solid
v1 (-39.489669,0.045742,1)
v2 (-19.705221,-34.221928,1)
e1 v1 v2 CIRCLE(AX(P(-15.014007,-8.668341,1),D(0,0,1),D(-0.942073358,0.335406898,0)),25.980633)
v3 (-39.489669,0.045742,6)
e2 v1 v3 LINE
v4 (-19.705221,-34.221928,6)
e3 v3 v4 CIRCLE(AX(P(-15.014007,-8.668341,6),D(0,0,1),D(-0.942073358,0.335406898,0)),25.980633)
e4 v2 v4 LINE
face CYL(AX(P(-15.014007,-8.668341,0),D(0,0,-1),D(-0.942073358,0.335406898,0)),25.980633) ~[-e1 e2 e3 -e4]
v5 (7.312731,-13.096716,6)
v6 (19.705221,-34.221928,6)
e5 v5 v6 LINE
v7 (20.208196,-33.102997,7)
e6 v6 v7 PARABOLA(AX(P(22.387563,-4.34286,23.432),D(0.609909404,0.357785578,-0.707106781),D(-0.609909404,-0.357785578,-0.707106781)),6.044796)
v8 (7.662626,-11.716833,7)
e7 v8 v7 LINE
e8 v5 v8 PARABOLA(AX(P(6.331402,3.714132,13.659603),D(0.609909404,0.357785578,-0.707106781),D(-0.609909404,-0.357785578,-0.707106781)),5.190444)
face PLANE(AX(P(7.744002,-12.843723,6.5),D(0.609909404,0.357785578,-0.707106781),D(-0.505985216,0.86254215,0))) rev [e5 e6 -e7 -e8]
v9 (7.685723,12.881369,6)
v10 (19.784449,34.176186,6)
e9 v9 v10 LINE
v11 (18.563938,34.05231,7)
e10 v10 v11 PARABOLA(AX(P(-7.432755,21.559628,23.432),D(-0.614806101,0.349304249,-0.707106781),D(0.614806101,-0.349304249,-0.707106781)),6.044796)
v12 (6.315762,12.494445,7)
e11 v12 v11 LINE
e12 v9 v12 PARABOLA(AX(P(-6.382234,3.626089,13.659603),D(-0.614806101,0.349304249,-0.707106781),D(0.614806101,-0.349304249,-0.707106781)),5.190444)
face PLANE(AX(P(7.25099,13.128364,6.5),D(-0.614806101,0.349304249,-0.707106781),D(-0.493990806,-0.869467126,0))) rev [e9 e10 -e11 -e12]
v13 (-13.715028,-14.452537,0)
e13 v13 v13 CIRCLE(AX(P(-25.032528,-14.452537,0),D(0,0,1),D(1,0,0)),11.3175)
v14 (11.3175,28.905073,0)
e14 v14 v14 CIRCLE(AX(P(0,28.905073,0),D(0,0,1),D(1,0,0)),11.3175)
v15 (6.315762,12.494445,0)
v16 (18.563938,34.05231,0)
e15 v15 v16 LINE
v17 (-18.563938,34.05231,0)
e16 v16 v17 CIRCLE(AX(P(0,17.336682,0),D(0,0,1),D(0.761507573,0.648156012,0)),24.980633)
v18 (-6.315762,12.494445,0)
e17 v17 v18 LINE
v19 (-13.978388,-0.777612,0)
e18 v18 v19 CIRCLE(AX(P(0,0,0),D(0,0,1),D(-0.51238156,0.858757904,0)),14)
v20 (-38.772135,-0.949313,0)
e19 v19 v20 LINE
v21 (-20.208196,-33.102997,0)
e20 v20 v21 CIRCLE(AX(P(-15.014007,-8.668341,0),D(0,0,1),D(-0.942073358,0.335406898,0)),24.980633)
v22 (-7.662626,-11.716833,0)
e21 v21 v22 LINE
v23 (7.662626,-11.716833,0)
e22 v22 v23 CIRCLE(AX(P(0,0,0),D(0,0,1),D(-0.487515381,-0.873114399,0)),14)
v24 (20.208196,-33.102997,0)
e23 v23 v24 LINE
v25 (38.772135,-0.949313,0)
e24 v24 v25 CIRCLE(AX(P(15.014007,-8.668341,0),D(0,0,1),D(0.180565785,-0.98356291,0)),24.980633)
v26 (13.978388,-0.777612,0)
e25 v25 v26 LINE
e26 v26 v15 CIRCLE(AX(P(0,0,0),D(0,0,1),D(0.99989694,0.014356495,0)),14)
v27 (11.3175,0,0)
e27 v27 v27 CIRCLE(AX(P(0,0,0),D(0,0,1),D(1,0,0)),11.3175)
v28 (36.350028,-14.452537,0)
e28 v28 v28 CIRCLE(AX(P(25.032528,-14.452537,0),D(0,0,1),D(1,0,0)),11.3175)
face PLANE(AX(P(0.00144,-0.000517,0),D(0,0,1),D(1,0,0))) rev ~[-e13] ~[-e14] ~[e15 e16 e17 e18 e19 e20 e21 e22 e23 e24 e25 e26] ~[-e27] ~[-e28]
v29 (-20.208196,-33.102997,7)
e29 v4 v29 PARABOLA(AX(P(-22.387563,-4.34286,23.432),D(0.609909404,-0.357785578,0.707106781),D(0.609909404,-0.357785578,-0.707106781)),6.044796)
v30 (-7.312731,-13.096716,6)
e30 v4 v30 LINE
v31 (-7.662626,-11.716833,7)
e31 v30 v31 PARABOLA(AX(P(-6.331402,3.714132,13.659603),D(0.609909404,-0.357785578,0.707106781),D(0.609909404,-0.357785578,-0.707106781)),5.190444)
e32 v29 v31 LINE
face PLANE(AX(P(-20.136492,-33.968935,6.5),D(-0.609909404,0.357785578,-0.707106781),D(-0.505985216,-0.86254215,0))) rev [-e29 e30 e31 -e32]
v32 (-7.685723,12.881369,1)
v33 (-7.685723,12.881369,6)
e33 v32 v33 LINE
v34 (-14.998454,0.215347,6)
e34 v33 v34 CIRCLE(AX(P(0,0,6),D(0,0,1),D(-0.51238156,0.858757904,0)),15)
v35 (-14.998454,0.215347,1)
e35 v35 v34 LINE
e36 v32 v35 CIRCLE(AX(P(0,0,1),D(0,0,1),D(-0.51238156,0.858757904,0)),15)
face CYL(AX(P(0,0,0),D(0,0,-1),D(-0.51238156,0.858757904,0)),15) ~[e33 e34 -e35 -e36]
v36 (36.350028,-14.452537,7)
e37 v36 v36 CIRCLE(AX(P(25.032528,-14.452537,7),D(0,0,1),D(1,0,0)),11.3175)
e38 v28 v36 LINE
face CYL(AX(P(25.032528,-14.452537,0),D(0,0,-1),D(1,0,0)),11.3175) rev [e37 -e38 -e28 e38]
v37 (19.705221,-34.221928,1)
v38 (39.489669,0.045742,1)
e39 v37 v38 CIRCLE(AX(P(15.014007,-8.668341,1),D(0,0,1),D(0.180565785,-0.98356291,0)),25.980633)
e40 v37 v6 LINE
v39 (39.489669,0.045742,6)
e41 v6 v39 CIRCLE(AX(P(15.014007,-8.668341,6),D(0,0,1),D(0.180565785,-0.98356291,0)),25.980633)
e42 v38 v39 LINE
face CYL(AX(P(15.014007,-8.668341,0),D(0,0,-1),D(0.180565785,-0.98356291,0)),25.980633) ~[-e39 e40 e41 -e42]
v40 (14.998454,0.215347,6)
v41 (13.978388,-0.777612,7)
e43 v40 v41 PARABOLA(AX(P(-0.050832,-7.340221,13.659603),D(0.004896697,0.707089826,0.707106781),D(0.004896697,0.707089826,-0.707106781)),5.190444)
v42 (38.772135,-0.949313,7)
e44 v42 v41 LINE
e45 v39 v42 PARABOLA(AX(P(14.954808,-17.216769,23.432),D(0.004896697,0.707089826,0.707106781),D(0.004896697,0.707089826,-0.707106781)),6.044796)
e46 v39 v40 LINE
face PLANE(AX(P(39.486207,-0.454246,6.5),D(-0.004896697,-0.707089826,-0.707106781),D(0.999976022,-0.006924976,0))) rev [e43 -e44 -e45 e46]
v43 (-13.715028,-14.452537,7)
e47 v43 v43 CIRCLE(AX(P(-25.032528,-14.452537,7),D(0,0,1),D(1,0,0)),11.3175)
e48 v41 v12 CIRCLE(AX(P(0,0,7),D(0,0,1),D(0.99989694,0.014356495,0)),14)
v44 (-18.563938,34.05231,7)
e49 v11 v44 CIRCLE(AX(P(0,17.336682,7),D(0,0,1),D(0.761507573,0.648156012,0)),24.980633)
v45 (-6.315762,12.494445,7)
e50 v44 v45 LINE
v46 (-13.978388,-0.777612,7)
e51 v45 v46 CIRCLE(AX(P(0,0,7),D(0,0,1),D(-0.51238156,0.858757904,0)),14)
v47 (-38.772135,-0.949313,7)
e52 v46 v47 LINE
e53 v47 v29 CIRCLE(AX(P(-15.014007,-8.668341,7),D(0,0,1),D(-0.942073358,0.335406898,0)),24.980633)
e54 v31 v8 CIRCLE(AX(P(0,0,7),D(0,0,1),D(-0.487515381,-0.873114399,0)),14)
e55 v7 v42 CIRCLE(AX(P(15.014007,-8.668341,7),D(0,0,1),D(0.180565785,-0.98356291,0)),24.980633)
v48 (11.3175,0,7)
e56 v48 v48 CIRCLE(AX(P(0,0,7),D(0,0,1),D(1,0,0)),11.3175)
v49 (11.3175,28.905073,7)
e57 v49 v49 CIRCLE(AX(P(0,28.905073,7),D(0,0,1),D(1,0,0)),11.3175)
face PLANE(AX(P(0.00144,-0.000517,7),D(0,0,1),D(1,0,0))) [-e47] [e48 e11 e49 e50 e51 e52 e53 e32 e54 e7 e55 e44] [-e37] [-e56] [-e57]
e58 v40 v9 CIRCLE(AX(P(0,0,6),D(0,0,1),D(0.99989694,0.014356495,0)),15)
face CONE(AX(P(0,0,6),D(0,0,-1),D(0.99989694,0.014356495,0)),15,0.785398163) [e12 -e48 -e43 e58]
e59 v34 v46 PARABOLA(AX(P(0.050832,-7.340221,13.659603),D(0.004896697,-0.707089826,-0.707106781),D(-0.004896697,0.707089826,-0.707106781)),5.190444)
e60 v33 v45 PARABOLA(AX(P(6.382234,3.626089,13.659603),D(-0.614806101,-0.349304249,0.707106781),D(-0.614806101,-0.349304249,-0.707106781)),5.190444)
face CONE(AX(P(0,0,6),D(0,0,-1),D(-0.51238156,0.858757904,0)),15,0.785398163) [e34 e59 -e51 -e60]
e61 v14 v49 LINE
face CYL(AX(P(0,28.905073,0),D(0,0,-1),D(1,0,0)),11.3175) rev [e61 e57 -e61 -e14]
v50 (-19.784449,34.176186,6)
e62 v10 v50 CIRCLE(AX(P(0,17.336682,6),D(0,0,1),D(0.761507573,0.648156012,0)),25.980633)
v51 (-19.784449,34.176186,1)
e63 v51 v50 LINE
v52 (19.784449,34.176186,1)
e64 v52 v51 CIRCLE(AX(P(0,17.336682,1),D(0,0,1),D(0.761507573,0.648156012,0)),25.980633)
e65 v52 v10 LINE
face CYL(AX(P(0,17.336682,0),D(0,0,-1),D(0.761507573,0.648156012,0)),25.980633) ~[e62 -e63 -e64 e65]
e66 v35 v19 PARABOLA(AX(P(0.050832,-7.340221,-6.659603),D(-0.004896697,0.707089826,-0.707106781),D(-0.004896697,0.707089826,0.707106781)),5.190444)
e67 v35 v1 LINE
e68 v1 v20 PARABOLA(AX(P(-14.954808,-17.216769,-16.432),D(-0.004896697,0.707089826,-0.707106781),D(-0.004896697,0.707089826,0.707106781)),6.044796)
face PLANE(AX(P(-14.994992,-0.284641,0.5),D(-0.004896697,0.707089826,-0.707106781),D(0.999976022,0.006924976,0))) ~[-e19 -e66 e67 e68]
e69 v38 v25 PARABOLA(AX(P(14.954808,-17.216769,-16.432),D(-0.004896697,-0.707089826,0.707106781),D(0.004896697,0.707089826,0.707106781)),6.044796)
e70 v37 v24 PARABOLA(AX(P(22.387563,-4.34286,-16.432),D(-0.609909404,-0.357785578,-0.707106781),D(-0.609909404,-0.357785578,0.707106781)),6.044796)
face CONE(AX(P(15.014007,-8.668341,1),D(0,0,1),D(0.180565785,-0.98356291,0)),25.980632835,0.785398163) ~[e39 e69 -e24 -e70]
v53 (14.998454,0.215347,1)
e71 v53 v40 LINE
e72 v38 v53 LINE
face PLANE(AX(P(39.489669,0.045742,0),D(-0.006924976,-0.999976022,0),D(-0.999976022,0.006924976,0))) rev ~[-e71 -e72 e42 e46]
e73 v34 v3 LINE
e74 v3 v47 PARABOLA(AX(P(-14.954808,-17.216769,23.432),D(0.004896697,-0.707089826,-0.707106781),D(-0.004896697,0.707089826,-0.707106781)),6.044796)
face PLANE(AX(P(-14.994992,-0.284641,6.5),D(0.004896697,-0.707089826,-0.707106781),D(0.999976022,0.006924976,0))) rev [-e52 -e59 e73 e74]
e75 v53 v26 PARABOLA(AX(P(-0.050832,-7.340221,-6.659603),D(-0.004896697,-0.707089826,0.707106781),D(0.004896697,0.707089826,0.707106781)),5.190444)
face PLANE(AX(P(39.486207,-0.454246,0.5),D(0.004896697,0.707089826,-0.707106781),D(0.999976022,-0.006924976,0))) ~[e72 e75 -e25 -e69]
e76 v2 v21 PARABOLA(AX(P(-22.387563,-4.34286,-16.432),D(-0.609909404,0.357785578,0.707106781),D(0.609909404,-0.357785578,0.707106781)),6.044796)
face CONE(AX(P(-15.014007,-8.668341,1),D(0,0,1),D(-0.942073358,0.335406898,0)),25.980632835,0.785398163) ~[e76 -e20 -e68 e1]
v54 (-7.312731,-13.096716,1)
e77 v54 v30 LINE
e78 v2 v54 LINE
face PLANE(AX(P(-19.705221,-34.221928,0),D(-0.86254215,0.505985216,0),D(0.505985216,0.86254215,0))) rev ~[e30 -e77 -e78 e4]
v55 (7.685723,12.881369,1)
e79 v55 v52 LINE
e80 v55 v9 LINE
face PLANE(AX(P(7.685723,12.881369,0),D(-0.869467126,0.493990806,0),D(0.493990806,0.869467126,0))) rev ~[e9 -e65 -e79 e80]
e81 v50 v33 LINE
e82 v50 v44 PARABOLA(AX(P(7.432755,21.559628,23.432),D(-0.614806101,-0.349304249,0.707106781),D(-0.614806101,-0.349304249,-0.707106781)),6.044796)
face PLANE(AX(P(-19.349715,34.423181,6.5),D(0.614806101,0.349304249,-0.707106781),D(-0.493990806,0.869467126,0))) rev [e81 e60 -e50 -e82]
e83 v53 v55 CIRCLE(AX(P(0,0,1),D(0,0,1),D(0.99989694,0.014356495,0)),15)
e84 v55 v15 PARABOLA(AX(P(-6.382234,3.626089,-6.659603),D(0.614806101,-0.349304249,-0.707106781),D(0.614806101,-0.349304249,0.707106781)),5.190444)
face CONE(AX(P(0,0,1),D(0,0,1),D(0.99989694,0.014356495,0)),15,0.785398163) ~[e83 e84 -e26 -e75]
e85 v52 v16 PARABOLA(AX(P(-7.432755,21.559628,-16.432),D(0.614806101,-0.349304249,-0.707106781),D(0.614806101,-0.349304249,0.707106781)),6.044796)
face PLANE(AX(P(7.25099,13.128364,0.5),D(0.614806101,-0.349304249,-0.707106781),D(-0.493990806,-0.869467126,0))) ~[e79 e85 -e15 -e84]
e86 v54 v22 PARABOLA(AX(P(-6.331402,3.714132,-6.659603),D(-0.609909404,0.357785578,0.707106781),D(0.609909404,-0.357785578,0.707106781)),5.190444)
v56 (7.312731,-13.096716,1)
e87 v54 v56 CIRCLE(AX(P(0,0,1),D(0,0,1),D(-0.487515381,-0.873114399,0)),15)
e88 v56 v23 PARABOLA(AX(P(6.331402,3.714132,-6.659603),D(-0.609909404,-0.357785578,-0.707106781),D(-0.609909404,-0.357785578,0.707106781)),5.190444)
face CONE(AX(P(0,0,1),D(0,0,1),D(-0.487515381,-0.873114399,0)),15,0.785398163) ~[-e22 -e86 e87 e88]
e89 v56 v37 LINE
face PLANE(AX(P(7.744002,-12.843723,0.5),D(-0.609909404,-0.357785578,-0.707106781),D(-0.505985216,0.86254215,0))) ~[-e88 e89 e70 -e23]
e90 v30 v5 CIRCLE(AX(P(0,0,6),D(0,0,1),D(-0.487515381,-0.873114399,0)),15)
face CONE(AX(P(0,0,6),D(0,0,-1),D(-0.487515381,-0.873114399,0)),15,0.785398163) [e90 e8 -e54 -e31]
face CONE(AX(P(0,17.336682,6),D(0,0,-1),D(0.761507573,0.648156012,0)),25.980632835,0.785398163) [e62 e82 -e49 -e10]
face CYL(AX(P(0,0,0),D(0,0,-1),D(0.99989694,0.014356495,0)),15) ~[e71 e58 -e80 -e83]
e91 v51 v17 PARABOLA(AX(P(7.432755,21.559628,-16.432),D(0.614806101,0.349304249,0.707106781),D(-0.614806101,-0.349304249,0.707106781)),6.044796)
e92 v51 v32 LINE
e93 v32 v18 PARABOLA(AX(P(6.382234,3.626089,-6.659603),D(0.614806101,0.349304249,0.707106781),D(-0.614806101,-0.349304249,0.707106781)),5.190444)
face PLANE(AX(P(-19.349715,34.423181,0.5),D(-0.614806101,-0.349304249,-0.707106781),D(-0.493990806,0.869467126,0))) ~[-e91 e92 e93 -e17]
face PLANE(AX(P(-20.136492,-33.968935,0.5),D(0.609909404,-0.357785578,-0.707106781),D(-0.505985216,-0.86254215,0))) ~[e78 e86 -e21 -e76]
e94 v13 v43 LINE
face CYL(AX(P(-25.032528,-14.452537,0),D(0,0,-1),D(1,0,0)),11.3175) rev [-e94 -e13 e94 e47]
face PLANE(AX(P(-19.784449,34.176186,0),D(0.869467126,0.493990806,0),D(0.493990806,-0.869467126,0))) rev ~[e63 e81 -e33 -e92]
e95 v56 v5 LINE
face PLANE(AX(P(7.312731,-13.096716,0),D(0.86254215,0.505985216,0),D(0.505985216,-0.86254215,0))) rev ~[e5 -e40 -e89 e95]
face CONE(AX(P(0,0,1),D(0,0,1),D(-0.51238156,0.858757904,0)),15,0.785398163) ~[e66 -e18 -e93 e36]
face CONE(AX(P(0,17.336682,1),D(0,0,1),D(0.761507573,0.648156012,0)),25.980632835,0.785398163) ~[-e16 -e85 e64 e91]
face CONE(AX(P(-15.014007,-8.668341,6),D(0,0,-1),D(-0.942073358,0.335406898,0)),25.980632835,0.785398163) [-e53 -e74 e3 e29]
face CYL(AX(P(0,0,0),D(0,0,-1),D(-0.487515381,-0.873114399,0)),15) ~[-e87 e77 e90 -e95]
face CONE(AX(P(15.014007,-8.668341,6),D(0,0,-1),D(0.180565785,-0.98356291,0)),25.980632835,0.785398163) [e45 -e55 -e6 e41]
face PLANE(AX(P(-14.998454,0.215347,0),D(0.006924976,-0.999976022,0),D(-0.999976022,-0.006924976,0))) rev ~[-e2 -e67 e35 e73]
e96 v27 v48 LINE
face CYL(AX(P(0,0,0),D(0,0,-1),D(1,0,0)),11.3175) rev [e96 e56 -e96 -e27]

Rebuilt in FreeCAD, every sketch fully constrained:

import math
import FreeCAD as App
import Part
import Sketcher


def edges_at(feature, points):
    """Names of the edges that pass closest to the given points."""
    edges = feature.Shape.Edges
    near = lambda p: min(range(len(edges)), key=lambda i: edges[i].distToShape(Part.Vertex(*p))[0])
    return sorted({f"Edge{near(p) + 1}" for p in points})

doc = App.newDocument("Part")
body = doc.addObject("PartDesign::Body", "Body")

sketch1 = body.newObject("Sketcher::SketchObject", "Sketch")
sketch1.AttachmentSupport = (doc.getObject("XY_Plane"), [""])
sketch1.MapMode = "FlatFace"
sketch1.addGeometry([
    Part.ArcOfCircle(Part.Circle(App.Vector(0, 0, 0), App.Vector(0, 0, 1), 15), math.radians(-119.177405), math.radians(-60.822595)),
    Part.LineSegment(App.Vector(7.312731, -13.096716, 0), App.Vector(19.705221, -34.221928, 0)),
    Part.ArcOfCircle(Part.Circle(App.Vector(15.014007, -8.668341, 0), App.Vector(0, 0, 1), 25.980633), math.radians(-79.597283), math.radians(19.597283)),
    Part.LineSegment(App.Vector(39.489669, 0.045742, 0), App.Vector(14.998454, 0.215347, 0)),
    Part.ArcOfCircle(Part.Circle(App.Vector(0, 0, 0), App.Vector(0, 0, 1), 15), math.radians(0.822595), math.radians(59.177405)),
    Part.LineSegment(App.Vector(7.685723, 12.881369, 0), App.Vector(19.784449, 34.176186, 0)),
    Part.ArcOfCircle(Part.Circle(App.Vector(0, 17.336682, 0), App.Vector(0, 0, 1), 25.980633), math.radians(40.402717), math.radians(139.597283)),
    Part.LineSegment(App.Vector(-19.784449, 34.176186, 0), App.Vector(-7.685723, 12.881369, 0)),
    Part.ArcOfCircle(Part.Circle(App.Vector(0, 0, 0), App.Vector(0, 0, 1), 15), math.radians(120.822595), math.radians(179.177405)),
    Part.LineSegment(App.Vector(-14.998454, 0.215347, 0), App.Vector(-39.489669, 0.045742, 0)),
    Part.ArcOfCircle(Part.Circle(App.Vector(-15.014007, -8.668341, 0), App.Vector(0, 0, 1), 25.980633), math.radians(160.402717), math.radians(259.597283)),
    Part.LineSegment(App.Vector(-19.705221, -34.221928, 0), App.Vector(-7.312731, -13.096716, 0)),
    Part.Circle(App.Vector(-25.032528, -14.452537, 0), App.Vector(0, 0, 1), 11.3175),
    Part.Circle(App.Vector(25.032528, -14.452537, 0), App.Vector(0, 0, 1), 11.3175),
    Part.Circle(App.Vector(0, 0, 0), App.Vector(0, 0, 1), 11.3175),
    Part.Circle(App.Vector(0, 28.905073, 0), App.Vector(0, 0, 1), 11.3175),
], False)
sketch1.addConstraint([
    Sketcher.Constraint("Coincident", 0, 2, 1, 1),
    Sketcher.Constraint("Coincident", 1, 2, 2, 1),
    Sketcher.Constraint("Coincident", 2, 2, 3, 1),
    Sketcher.Constraint("Coincident", 3, 2, 4, 1),
    Sketcher.Constraint("Coincident", 4, 2, 5, 1),
    Sketcher.Constraint("Coincident", 5, 2, 6, 1),
    Sketcher.Constraint("Coincident", 6, 2, 7, 1),
    Sketcher.Constraint("Coincident", 7, 2, 8, 1),
    Sketcher.Constraint("Coincident", 8, 2, 9, 1),
    Sketcher.Constraint("Coincident", 9, 2, 10, 1),
    Sketcher.Constraint("Coincident", 10, 2, 11, 1),
    Sketcher.Constraint("Coincident", 11, 2, 0, 1),
    Sketcher.Constraint("Coincident", 0, 3, -1, 1),
    Sketcher.Constraint("Coincident", 4, 3, -1, 1),
    Sketcher.Constraint("Coincident", 8, 3, -1, 1),
    Sketcher.Constraint("Coincident", 14, 3, -1, 1),
    Sketcher.Constraint("PointOnObject", 6, 3, -2),
    Sketcher.Constraint("PointOnObject", 15, 3, -2),
    Sketcher.Constraint("Radius", 0, 15.0),
    Sketcher.Constraint("Radius", 4, 15.0),
    Sketcher.Constraint("Radius", 8, 15.0),
    Sketcher.Constraint("Diameter", 12, 22.635),
    Sketcher.Constraint("Diameter", 13, 22.635),
    Sketcher.Constraint("Diameter", 14, 22.635),
    Sketcher.Constraint("Diameter", 15, 22.635),
    Sketcher.Constraint("Radius", 2, 25.980633),
    Sketcher.Constraint("Radius", 6, 25.980633),
    Sketcher.Constraint("Radius", 10, 25.980633),
    Sketcher.Constraint("DistanceY", 2, 3, -1, 1, 8.668341),
    Sketcher.Constraint("DistanceY", 10, 3, -1, 1, 8.668341),
    Sketcher.Constraint("DistanceX", -1, 1, 0, 2, 7.312731),
    Sketcher.Constraint("DistanceX", -1, 1, 1, 2, 19.705221),
    Sketcher.Constraint("DistanceY", 1, 2, -1, 1, 34.221928),
    Sketcher.Constraint("DistanceX", -1, 1, 2, 2, 39.489669),
    Sketcher.Constraint("DistanceY", -1, 1, 4, 2, 12.881369),
    Sketcher.Constraint("DistanceX", -1, 1, 5, 2, 19.784449),
    Sketcher.Constraint("DistanceX", 6, 2, -1, 1, 19.784449),
    Sketcher.Constraint("DistanceY", -1, 1, 7, 2, 12.881369),
    Sketcher.Constraint("DistanceX", 9, 2, -1, 1, 39.489669),
    Sketcher.Constraint("DistanceX", 10, 2, -1, 1, 19.705221),
    Sketcher.Constraint("DistanceY", 10, 2, -1, 1, 34.221928),
    Sketcher.Constraint("DistanceX", 11, 2, -1, 1, 7.312731),
    Sketcher.Constraint("DistanceX", 12, 3, 10, 3, 10.01852),
    Sketcher.Constraint("DistanceY", 12, 3, 6, 3, 31.789219),
    Sketcher.Constraint("DistanceX", 2, 3, 13, 3, 10.01852),
    Sketcher.Constraint("DistanceY", 13, 3, 6, 3, 31.789219),
    Sketcher.Constraint("DistanceY", 6, 3, 15, 3, 11.568391),
    Sketcher.Constraint("DistanceY", 1, 2, 13, 3, 19.769391),
    Sketcher.Constraint("DistanceY", 2, 3, 3, 2, 8.883689),
    Sketcher.Constraint("DistanceY", 10, 3, 8, 2, 8.883689),
])
pad1 = body.newObject("PartDesign::Pad", "Pad")
pad1.Profile = sketch1
pad1.Length = 7
doc.recompute()

chamfer = body.newObject("PartDesign::Chamfer", "Chamfer")
chamfer.Base = (pad1, edges_at(pad1, [
    (-27.244, 0.131, 7),
    (-13.735, 23.529, 7),
    (27.244, 0.131, 7),
    (13.735, 23.529, 7),
    (13.509, -23.659, 7),
    (-13.509, -23.659, 7),
    (-37.514, -21.659, 7),
    (37.514, -21.659, 7),
    (0, 43.317, 7),
    (-12.99, 7.5, 7),
    (12.99, 7.5, 7),
    (0, -15, 7),
    (0, -15, 0),
    (13.509, -23.659, 0),
    (-13.509, -23.659, 0),
    (37.514, -21.659, 0),
    (27.244, 0.131, 0),
    (12.99, 7.5, 0),
    (13.735, 23.529, 0),
    (0, 43.317, 0),
    (-13.735, 23.529, 0),
    (-12.99, 7.5, 0),
    (-27.244, 0.131, 0),
    (-37.514, -21.659, 0),
]))
chamfer.Size = 1

doc.recompute()
